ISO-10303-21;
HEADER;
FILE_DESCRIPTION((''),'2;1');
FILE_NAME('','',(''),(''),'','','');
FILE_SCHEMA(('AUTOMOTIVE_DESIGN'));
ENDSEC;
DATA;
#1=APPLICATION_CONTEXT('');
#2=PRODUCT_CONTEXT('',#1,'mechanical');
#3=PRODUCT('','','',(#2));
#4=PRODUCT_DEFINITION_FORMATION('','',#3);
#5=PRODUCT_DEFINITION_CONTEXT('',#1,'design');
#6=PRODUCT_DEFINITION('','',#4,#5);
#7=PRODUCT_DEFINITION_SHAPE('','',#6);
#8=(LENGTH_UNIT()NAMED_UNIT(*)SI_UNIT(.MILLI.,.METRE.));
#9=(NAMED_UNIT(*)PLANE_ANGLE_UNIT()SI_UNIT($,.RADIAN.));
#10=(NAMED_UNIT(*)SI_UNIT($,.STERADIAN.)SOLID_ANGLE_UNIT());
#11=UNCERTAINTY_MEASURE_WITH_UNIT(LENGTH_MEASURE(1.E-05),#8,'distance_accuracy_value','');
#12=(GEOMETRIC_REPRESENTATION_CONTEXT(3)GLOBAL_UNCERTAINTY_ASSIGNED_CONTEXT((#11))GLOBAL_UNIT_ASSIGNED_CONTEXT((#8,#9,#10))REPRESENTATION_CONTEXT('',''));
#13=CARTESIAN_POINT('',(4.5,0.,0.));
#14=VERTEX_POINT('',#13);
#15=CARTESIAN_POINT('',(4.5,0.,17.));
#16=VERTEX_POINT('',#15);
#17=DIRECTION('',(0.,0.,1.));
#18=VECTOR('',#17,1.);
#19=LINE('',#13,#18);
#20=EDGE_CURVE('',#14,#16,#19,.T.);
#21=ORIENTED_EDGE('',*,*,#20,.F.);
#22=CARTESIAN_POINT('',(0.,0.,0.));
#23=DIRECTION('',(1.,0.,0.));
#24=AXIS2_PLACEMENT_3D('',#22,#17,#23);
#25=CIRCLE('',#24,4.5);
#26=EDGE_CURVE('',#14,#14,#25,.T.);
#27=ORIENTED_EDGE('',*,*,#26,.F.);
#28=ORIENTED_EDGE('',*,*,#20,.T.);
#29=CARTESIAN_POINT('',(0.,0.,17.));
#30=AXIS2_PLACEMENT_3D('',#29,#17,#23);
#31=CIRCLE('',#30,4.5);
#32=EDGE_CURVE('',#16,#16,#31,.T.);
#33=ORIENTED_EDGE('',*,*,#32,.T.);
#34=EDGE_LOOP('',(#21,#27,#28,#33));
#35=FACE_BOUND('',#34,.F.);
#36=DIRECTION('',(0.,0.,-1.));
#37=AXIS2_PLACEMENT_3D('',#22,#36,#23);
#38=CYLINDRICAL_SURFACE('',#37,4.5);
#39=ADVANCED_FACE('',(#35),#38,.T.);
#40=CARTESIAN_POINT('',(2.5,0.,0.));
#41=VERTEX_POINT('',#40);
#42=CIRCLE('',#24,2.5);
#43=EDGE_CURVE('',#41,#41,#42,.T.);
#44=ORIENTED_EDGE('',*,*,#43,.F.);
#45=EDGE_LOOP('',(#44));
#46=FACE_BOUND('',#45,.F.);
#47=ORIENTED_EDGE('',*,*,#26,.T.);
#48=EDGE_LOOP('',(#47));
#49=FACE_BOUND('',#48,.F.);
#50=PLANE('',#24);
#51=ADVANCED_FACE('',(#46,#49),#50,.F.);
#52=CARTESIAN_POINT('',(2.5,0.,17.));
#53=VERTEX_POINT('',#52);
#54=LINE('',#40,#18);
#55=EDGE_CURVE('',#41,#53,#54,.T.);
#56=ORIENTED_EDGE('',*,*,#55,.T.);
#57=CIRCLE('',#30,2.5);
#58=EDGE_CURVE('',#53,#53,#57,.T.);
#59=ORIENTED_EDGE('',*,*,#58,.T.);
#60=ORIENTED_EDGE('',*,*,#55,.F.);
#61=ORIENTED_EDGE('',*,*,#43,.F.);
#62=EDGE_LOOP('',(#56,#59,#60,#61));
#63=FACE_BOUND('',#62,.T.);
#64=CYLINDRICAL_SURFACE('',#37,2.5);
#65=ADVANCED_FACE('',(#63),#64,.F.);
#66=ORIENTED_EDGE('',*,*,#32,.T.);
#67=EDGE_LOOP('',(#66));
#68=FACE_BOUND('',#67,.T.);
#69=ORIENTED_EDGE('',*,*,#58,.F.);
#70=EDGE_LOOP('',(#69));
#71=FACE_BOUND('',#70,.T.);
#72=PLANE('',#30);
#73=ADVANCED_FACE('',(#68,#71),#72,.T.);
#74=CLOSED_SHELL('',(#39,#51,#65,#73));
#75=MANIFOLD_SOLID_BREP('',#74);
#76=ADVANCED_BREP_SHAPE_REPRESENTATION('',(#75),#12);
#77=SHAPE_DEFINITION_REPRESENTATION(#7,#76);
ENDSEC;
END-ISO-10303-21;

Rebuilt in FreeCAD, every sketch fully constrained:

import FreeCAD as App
import Part
import Sketcher
Q = App.Units.Quantity

doc = App.newDocument("Part")
params = doc.addObject("Spreadsheet::Sheet", "Params")
for row, (alias, value) in enumerate([
    ("sketch1_diameter", "9 mm"),
    ("sketch1_diameter2", "5 mm"),
    ("pad1_length", "17 mm"),
], start=1):
    params.set(f"A{row}", alias)
    params.set(f"B{row}", "=" + value)
    params.setAlias(f"B{row}", alias)

body = doc.addObject("PartDesign::Body", "Body")

# Sketch on XY plane
sketch1 = body.newObject("Sketcher::SketchObject", "Sketch")
sketch1.AttachmentSupport = (doc.getObject("XY_Plane"), [""])
sketch1.MapMode = "FlatFace"
sketch1.addGeometry(Part.Circle(App.Vector(0, 0, 0), App.Vector(0, 0, 1), 4.5), False)
sketch1.addGeometry(Part.Circle(App.Vector(0, 0, 0), App.Vector(0, 0, 1), 2.5), False)
sketch1.addConstraint(Sketcher.Constraint("Coincident", 0, 3, -1, 1))
sketch1.addConstraint(Sketcher.Constraint("Coincident", 1, 3, -1, 1))
sketch1.addConstraint(Sketcher.Constraint("Diameter", 0, Q("9 mm")))
sketch1.addConstraint(Sketcher.Constraint("Diameter", 1, Q("5 mm")))
sketch1.setExpression("Constraints[2]", "Params.sketch1_diameter")
sketch1.setExpression("Constraints[3]", "Params.sketch1_diameter2")
pad1 = body.newObject("PartDesign::Pad", "Pad")
pad1.Profile = sketch1
pad1.setExpression("Length", "Params.pad1_length")

doc.recompute()
